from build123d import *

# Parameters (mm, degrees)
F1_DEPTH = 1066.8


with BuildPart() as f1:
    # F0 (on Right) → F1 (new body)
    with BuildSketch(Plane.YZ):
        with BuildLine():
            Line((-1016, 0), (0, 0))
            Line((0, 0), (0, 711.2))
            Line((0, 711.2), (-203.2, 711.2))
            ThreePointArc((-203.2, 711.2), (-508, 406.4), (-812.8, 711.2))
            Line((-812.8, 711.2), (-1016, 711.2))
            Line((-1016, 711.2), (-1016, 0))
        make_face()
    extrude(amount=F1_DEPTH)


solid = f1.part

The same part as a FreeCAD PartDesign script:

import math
import FreeCAD as App
import Part
import Sketcher

V = App.Vector
Q = App.Units.Quantity

doc = App.newDocument("Part")
params = doc.addObject("Spreadsheet::Sheet", "Params")
for row, (alias, value) in enumerate([
    ("sketch1_radius", "12 in"),
    ("sketch1_width", "40 in"),
    ("sketch1_height", "28 in"),
    ("pad1_length", "42 in"),
], start=1):
    params.set(f"A{row}", alias)
    params.set(f"B{row}", "=" + value)
    params.setAlias(f"B{row}", alias)

body = doc.addObject("PartDesign::Body", "Body")

sketch1 = body.newObject("Sketcher::SketchObject", "Sketch")
sketch1.AttachmentSupport = (doc.getObject("YZ_Plane"), [""])
sketch1.MapMode = "FlatFace"
sketch1.addGeometry(Part.LineSegment(V(-1016, 0, 0), V(0, 0, 0)), False)
sketch1.addGeometry(Part.LineSegment(V(0, 0, 0), V(0, 711, 0)), False)
sketch1.addGeometry(Part.LineSegment(V(0, 711, 0), V(-203, 711, 0)), False)
sketch1.addGeometry(Part.ArcOfCircle(Part.Circle(V(-508, 711, 0), V(0, 0, 1), 305), math.radians(180), math.radians(360)), False)
sketch1.addGeometry(Part.LineSegment(V(-813, 711, 0), V(-1016, 711, 0)), False)
sketch1.addGeometry(Part.LineSegment(V(-1016, 711, 0), V(-1016, 0, 0)), False)
sketch1.addConstraint(Sketcher.Constraint("Coincident", 0, 2, 1, 1))
sketch1.addConstraint(Sketcher.Constraint("Coincident", 1, 2, 2, 1))
sketch1.addConstraint(Sketcher.Constraint("Coincident", 2, 2, 3, 2))
sketch1.addConstraint(Sketcher.Constraint("Coincident", 3, 1, 4, 1))
sketch1.addConstraint(Sketcher.Constraint("Coincident", 4, 2, 5, 1))
sketch1.addConstraint(Sketcher.Constraint("Coincident", 5, 2, 0, 1))
sketch1.addConstraint(Sketcher.Constraint("Horizontal", 0))
sketch1.addConstraint(Sketcher.Constraint("Vertical", 1))
sketch1.addConstraint(Sketcher.Constraint("Horizontal", 2))
sketch1.addConstraint(Sketcher.Constraint("Horizontal", 4))
sketch1.addConstraint(Sketcher.Constraint("Vertical", 5))
sketch1.addConstraint(Sketcher.Constraint("Coincident", 0, 2, -1, 1))
sketch1.addConstraint(Sketcher.Constraint("Horizontal", 3, 3, 1, 2))
sketch1.addConstraint(Sketcher.Constraint("Horizontal", 2, 2, 3, 1))
sketch1.addConstraint(Sketcher.Constraint("Equal", 2, 4))
sketch1.addConstraint(Sketcher.Constraint("Radius", 3, Q("12 in")))
sketch1.addConstraint(Sketcher.Constraint("DistanceX", 0, 1, 0, 2, Q("40 in")))
sketch1.addConstraint(Sketcher.Constraint("DistanceY", 1, 1, 1, 2, Q("28 in")))
sketch1.setExpression("Constraints[15]", "Params.sketch1_radius")
sketch1.setExpression("Constraints[16]", "Params.sketch1_width")
sketch1.setExpression("Constraints[17]", "Params.sketch1_height")
pad1 = body.newObject("PartDesign::Pad", "Pad")
pad1.Profile = sketch1
pad1.setExpression("Length", "Params.pad1_length")

doc.recompute()
